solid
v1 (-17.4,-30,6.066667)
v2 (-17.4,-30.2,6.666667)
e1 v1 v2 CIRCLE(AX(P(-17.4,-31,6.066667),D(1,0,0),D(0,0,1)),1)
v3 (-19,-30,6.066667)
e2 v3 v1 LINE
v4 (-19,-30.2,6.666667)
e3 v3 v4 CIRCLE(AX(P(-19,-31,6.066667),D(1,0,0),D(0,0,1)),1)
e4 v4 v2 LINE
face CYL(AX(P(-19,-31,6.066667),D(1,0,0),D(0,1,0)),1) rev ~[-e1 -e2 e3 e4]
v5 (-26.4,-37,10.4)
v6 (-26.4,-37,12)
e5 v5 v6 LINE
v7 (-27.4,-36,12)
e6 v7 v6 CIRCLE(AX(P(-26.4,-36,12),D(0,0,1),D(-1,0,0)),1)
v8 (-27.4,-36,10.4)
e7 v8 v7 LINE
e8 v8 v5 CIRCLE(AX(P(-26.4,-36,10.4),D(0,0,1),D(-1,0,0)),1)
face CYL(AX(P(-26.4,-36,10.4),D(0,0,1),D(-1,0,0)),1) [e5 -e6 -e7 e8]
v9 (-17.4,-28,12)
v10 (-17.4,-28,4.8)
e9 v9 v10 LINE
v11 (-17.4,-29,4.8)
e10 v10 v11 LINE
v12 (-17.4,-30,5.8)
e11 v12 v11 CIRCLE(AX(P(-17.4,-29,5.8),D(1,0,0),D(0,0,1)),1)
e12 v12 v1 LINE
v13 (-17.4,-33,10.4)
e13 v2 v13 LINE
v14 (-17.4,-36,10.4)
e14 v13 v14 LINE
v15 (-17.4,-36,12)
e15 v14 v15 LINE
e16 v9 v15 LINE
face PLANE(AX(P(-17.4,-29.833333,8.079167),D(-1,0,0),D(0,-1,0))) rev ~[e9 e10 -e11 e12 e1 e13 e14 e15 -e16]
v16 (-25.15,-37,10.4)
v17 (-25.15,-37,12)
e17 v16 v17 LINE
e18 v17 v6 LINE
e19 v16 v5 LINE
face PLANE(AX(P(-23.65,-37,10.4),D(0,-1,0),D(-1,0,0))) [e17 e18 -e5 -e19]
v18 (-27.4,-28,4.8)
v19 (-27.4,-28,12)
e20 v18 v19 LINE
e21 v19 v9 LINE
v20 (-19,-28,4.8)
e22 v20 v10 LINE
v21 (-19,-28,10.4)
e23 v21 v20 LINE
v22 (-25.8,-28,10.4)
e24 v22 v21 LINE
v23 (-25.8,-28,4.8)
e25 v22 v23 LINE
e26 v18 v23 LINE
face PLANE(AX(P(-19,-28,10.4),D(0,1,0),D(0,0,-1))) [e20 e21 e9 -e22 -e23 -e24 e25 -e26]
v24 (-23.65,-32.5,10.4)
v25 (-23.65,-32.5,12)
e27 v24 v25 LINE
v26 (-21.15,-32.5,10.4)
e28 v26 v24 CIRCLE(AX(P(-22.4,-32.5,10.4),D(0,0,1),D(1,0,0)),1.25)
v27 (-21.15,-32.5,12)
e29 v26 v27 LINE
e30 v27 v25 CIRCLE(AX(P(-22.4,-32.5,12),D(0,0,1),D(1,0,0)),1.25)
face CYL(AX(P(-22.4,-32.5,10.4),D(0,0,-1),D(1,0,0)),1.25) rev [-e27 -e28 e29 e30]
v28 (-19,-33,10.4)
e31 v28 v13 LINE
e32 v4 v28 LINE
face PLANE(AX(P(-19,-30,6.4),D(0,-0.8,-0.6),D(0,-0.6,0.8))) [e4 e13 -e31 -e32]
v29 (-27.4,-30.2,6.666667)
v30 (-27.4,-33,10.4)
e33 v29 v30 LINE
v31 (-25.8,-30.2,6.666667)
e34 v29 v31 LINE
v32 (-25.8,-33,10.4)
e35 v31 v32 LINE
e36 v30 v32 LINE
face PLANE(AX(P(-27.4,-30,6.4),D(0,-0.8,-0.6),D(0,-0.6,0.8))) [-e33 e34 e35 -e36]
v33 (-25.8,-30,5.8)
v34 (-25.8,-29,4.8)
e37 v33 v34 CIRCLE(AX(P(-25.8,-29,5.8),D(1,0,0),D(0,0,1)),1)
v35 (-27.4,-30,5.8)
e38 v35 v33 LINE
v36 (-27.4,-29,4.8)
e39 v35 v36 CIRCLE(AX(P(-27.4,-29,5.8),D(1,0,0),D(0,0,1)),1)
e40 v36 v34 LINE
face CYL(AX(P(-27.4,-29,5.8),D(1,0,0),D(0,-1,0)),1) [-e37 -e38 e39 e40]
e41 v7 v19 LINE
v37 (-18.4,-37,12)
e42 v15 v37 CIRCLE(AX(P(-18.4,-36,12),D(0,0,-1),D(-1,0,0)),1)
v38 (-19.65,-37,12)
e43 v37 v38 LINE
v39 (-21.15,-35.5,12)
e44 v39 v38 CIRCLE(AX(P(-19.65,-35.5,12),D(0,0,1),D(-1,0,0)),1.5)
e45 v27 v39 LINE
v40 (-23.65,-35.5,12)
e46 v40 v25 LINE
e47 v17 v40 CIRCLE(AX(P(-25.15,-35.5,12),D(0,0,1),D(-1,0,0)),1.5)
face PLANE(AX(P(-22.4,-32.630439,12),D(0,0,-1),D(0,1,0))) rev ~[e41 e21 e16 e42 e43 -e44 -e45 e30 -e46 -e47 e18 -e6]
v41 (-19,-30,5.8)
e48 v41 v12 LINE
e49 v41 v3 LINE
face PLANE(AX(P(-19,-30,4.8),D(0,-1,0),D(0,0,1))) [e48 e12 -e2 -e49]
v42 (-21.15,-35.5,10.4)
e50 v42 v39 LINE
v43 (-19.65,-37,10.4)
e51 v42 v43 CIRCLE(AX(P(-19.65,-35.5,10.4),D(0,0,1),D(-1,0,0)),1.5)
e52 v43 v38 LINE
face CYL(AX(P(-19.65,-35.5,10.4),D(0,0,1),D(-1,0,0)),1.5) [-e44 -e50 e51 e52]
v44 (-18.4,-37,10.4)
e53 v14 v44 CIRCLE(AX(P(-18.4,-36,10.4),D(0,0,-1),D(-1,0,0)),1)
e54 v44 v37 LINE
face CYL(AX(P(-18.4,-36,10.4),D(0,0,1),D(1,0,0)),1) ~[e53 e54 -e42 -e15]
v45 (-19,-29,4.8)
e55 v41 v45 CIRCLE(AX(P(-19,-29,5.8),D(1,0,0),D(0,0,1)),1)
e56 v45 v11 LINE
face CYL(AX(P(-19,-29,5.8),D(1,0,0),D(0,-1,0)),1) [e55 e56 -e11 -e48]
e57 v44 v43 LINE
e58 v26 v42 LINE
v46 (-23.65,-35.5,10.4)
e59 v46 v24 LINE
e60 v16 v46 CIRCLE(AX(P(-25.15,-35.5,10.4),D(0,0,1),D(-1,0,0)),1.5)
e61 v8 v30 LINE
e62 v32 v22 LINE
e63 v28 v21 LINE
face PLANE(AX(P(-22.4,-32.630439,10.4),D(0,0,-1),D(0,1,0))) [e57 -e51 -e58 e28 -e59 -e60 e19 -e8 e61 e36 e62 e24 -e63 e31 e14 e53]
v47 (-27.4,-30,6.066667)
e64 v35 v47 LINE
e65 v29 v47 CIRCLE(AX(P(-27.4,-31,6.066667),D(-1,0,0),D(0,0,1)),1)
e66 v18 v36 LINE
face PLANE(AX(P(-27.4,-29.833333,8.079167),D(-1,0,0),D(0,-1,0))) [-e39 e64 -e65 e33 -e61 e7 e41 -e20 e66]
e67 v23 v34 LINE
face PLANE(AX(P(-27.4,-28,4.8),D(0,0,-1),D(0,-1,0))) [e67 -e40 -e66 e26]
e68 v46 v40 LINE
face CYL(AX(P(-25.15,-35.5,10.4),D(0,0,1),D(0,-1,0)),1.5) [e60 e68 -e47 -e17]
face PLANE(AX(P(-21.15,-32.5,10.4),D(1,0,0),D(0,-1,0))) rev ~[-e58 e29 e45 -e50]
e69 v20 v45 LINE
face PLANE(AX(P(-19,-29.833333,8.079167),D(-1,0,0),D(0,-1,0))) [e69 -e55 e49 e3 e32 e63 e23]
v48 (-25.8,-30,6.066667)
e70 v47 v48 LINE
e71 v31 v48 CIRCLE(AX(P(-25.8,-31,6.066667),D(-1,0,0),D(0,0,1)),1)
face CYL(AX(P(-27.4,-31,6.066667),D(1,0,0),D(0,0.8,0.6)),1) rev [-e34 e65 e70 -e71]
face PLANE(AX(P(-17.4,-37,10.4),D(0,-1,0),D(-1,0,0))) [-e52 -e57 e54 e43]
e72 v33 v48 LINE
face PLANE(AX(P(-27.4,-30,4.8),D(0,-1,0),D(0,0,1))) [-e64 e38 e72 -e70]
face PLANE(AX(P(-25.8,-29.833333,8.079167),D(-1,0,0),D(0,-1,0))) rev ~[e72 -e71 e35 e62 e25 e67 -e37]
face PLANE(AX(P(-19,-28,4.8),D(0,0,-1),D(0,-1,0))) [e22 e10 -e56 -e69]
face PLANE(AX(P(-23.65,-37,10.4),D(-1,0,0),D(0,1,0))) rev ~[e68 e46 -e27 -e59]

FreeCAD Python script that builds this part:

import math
import FreeCAD as App
import Part
import Sketcher


def edges_at(feature, points):
    """Names of the edges that pass closest to the given points."""
    edges = feature.Shape.Edges
    near = lambda p: min(range(len(edges)), key=lambda i: edges[i].distToShape(Part.Vertex(*p))[0])
    return sorted({f"Edge{near(p) + 1}" for p in points})


def add_polygon(sketch, points):
    """Adds a closed chain of lines whose ends are joined by coincident constraints."""
    first, n = sketch.GeometryCount, len(points)
    for a, b in zip(points, points[1:] + points[:1]):
        sketch.addGeometry(Part.LineSegment(App.Vector(*a, 0), App.Vector(*b, 0)), False)
    for i in range(n):
        sketch.addConstraint(Sketcher.Constraint("Coincident", first + i, 2, first + (i + 1) % n, 1))

doc = App.newDocument("Part")
body = doc.addObject("PartDesign::Body", "Body")

sketch1 = body.newObject("Sketcher::SketchObject", "Sketch")
sketch1.AttachmentSupport = (doc.getObject("XY_Plane"), [""])
sketch1.MapMode = "FlatFace"
sketch1.addGeometry(Part.LineSegment(App.Vector(4.5, 5, 0), App.Vector(-4.5, 5, 0)), False)
sketch1.addGeometry(Part.LineSegment(App.Vector(-4.5, 5, 0), App.Vector(-4.5, -5, 0)), False)
sketch1.addGeometry(Part.LineSegment(App.Vector(-4.5, -5, 0), App.Vector(4.5, -5, 0)), False)
sketch1.addGeometry(Part.LineSegment(App.Vector(4.5, -5, 0), App.Vector(4.5, -1.25, 0)), False)
sketch1.addGeometry(Part.LineSegment(App.Vector(4.5, -1.25, 0), App.Vector(0, -1.25, 0)), False)
sketch1.addGeometry(Part.ArcOfCircle(Part.Circle(App.Vector(0, 0, 0), App.Vector(0, 0, 1), 1.25), math.radians(90), math.radians(270)), False)
sketch1.addGeometry(Part.LineSegment(App.Vector(0, 1.25, 0), App.Vector(4.5, 1.25, 0)), False)
sketch1.addGeometry(Part.LineSegment(App.Vector(4.5, 1.25, 0), App.Vector(4.5, 5, 0)), False)
sketch1.addConstraint(Sketcher.Constraint("Coincident", 0, 2, 1, 1))
sketch1.addConstraint(Sketcher.Constraint("Coincident", 1, 2, 2, 1))
sketch1.addConstraint(Sketcher.Constraint("Coincident", 2, 2, 3, 1))
sketch1.addConstraint(Sketcher.Constraint("Coincident", 3, 2, 4, 1))
sketch1.addConstraint(Sketcher.Constraint("Tangent", 4, 2, 5, 2))
sketch1.addConstraint(Sketcher.Constraint("Tangent", 5, 1, 6, 1))
sketch1.addConstraint(Sketcher.Constraint("Coincident", 6, 2, 7, 1))
sketch1.addConstraint(Sketcher.Constraint("Coincident", 7, 2, 0, 1))
sketch1.addConstraint(Sketcher.Constraint("Horizontal", 0))
sketch1.addConstraint(Sketcher.Constraint("Vertical", 1))
sketch1.addConstraint(Sketcher.Constraint("Horizontal", 2))
sketch1.addConstraint(Sketcher.Constraint("Vertical", 3))
sketch1.addConstraint(Sketcher.Constraint("Horizontal", 4))
sketch1.addConstraint(Sketcher.Constraint("Horizontal", 6))
sketch1.addConstraint(Sketcher.Constraint("Vertical", 7))
sketch1.addConstraint(Sketcher.Constraint("Coincident", 5, 3, -1, 1))
sketch1.addConstraint(Sketcher.Constraint("Symmetric", 0, 2, 2, 2, -1, 1))
sketch1.addConstraint(Sketcher.Constraint("Vertical", 3, 2, 6, 2))
sketch1.addConstraint(Sketcher.Constraint("DistanceX", 0, 2, 0, 1, 9.0))
sketch1.addConstraint(Sketcher.Constraint("DistanceY", 1, 2, 1, 1, 10.0))
sketch1.addConstraint(Sketcher.Constraint("Radius", 5, 1.25))
pad1 = body.newObject("PartDesign::Pad", "Pad")
pad1.Profile = sketch1
pad1.Length = 1.6

sketch2 = body.newObject("Sketcher::SketchObject", "Sketch001")
sketch2.AttachmentSupport = (doc.getObject("XZ_Plane"), [""])
sketch2.MapMode = "FlatFace"
sketch2.AttachmentOffset = App.Placement(App.Vector(0, 0, 5), App.Rotation())
add_polygon(sketch2, [(-4.5, 0), (-4.5, -5.6), (-2.5, -5.6), (-2.5, -4), (0.5, 0)])
sketch2.addConstraint(Sketcher.Constraint("Vertical", 0))
sketch2.addConstraint(Sketcher.Constraint("Horizontal", 1))
sketch2.addConstraint(Sketcher.Constraint("Vertical", 2))
sketch2.addConstraint(Sketcher.Constraint("Horizontal", 4))
sketch2.addConstraint(Sketcher.Constraint("PointOnObject", 3, 2, -1))
sketch2.addConstraint(Sketcher.Constraint("DistanceX", 1, 1, 1, 2, 2.0))
sketch2.addConstraint(Sketcher.Constraint("DistanceX", 4, 2, 4, 1, 5.0))
sketch2.addConstraint(Sketcher.Constraint("Distance", 3, 5.0))
sketch2.addConstraint(Sketcher.Constraint("DistanceY", 0, 2, 0, 1, 5.6))
sketch2.addConstraint(Sketcher.Constraint("DistanceX", 0, 2, -1, 1, 4.5))
pad2 = body.newObject("PartDesign::Pad", "Pad001")
pad2.Profile = sketch2
pad2.Length = 1.6
pad2.Reversed = True
doc.recompute()

linearpattern = body.newObject("PartDesign::LinearPattern", "LinearPattern")
linearpattern.Originals = [pad2]
linearpattern.Direction = (doc.getObject("Y_Axis"), [""])
linearpattern.Mode = "offset"
linearpattern.Offset = 8.4
linearpattern.Occurrences = 2
body.Tip = linearpattern
doc.recompute()

fillet = body.newObject("PartDesign::Fillet", "Fillet")
fillet.Base = (linearpattern, edges_at(linearpattern, [(-2.5, -4.2, -5.6), (-2.5, 4.2, -5.6)]))
fillet.Radius = 1
doc.recompute()

fillet2 = body.newObject("PartDesign::Fillet", "Fillet001")
fillet2.Base = (fillet, edges_at(fillet, [(-2.5, -4.2, -4), (-2.5, 4.2, -4)]))
fillet2.Radius = 1
doc.recompute()

fillet3 = body.newObject("PartDesign::Fillet", "Fillet002")
fillet3.Base = (fillet2, edges_at(fillet2, [(4.5, -5, 0.8), (4.5, 5, 0.8)]))
fillet3.Radius = 1
doc.recompute()

fillet4 = body.newObject("PartDesign::Fillet", "Fillet003")
fillet4.Base = (fillet3, edges_at(fillet3, [(4.5, -1.25, 0.8), (4.5, 1.25, 0.8)]))
fillet4.Radius = 1.5
body2 = doc.addObject("PartDesign::Body", "Body001")
doc.recompute()

body.Placement = App.Placement(App.Vector(-22.4, -32.5, 10.4), App.Rotation(App.Vector(0, 0, -1), 90))
boolean = body2.newObject("PartDesign::Boolean", "Boolean")
boolean.Type = "Fuse"
boolean.addObjects([body])

doc.recompute()
